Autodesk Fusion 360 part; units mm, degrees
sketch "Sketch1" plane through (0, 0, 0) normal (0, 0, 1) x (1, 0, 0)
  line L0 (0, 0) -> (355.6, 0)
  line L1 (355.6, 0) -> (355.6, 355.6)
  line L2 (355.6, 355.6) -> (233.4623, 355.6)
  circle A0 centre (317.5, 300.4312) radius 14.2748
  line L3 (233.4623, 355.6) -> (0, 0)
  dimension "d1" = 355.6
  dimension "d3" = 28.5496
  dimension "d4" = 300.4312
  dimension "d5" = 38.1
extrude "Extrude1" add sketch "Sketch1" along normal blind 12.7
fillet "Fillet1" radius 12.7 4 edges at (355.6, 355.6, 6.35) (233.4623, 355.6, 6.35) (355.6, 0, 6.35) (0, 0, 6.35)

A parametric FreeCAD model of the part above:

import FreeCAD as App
import Part
import Sketcher

V = App.Vector
Q = App.Units.Quantity


def edges_at(feature, points):
    """Names of the edges that pass closest to the given points."""
    edges = feature.Shape.Edges
    near = lambda p: min(range(len(edges)), key=lambda i: edges[i].distToShape(Part.Vertex(*p))[0])
    return sorted({f"Edge{near(p) + 1}" for p in points})


def add_polygon(sketch, points):
    """Adds a closed chain of lines whose ends are joined by coincident constraints."""
    first, n = sketch.GeometryCount, len(points)
    for a, b in zip(points, points[1:] + points[:1]):
        sketch.addGeometry(Part.LineSegment(App.Vector(*a, 0), App.Vector(*b, 0)), False)
    for i in range(n):
        sketch.addConstraint(Sketcher.Constraint("Coincident", first + i, 2, first + (i + 1) % n, 1))

doc = App.newDocument("Part")
body = doc.addObject("PartDesign::Body", "Body")

# Sketch on XY plane
sketch1 = body.newObject("Sketcher::SketchObject", "Sketch")
sketch1.AttachmentSupport = (doc.getObject("XY_Plane"), [""])
sketch1.MapMode = "FlatFace"
add_polygon(sketch1, [(233, 356), (0, 0), (356, 0), (356, 356)])  # lines 0-3
sketch1.addGeometry(Part.Circle(V(318, 300, 0), V(0, 0, 1), 14), False)  # 4
sketch1.addConstraint([
    Sketcher.Constraint("Horizontal", 1),
    Sketcher.Constraint("Vertical", 2),
    Sketcher.Constraint("Horizontal", 3),
    Sketcher.Constraint("Coincident", 0, 2, -1, 1),
    Sketcher.Constraint("Equal", 1, 2),
    Sketcher.Constraint("DistanceX", 1, 1, 1, 2, Q("14 in")),
    Sketcher.Constraint("Diameter", 4, Q("1.124 in")),
    Sketcher.Constraint("DistanceX", 4, 3, 1, 2, Q("1.5 in")),
    Sketcher.Constraint("DistanceY", -1, 1, 4, 3, Q("11.828 in")),
    Sketcher.Constraint("Distance", 0, Q("16.7476 in")),
])
pad1 = body.newObject("PartDesign::Pad", "Pad")
pad1.Profile = sketch1
pad1.Length = Q("0.5 in")
doc.recompute()

fillet = body.newObject("PartDesign::Fillet", "Fillet")
fillet.Base = (pad1, edges_at(pad1, [
    (355.6, 355.6, 6.35),
    (233.462, 355.6, 6.35),
    (355.6, 0, 6.35),
    (0, 0, 6.35),
]))
fillet.Radius = Q("0.5 in")

doc.recompute()
